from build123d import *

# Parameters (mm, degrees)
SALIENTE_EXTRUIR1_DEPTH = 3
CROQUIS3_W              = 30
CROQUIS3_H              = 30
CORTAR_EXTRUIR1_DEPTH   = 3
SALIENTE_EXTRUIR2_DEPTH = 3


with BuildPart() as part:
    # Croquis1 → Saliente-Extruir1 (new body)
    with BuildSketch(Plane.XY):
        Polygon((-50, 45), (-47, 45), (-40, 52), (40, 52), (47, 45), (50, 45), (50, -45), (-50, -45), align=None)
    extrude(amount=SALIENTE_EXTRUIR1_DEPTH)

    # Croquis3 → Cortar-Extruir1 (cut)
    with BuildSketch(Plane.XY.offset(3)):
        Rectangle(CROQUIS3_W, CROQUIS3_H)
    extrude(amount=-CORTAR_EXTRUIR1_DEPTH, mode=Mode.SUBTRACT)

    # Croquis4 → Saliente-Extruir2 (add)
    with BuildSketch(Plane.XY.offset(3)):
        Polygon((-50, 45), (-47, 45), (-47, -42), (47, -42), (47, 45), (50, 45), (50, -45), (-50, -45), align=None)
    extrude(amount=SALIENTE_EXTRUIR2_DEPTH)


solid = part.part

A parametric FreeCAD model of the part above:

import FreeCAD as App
import Part
import Sketcher
from FreeCAD import Vector
Q = App.Units.Quantity


def add_polygon(sketch, points):
    """Adds a closed chain of lines whose ends are joined by coincident constraints."""
    first, n = sketch.GeometryCount, len(points)
    for a, b in zip(points, points[1:] + points[:1]):
        sketch.addGeometry(Part.LineSegment(App.Vector(*a, 0), App.Vector(*b, 0)), False)
    for i in range(n):
        sketch.addConstraint(Sketcher.Constraint("Coincident", first + i, 2, first + (i + 1) % n, 1))

doc = App.newDocument("Part")
params = doc.addObject("Spreadsheet::Sheet", "Params")
for row, (alias, value) in enumerate([
    ("sketch1_width", "3 mm"),
    ("sketch1_width2", "100 mm"),
    ("sketch1_width3", "80 mm"),
    ("sketch1_height", "90 mm"),
    ("pad1_length", "3 mm"),
    ("sketch2_width", "30 mm"),
    ("pocket1_length", "3 mm"),
    ("sketch3_width", "3 mm"),
    ("sketch3_width2", "100 mm"),
    ("sketch3_height", "90 mm"),
    ("sketch3_height2", "87 mm"),
    ("pad2_length", "3 mm"),
], start=1):
    params.set(f"A{row}", alias)
    params.set(f"B{row}", "=" + value)
    params.setAlias(f"B{row}", alias)

body = doc.addObject("PartDesign::Body", "Body")

sketch1 = body.newObject("Sketcher::SketchObject", "Sketch")
sketch1.AttachmentSupport = (doc.getObject("XY_Plane"), [""])
sketch1.MapMode = "FlatFace"
add_polygon(sketch1, [(-47, 45), (-50, 45), (-50, -45), (50, -45), (50, 45), (47, 45), (40, 52), (-40, 52)])
sketch1.addConstraint([
    Sketcher.Constraint("Horizontal", 0),
    Sketcher.Constraint("Vertical", 1),
    Sketcher.Constraint("Horizontal", 2),
    Sketcher.Constraint("Vertical", 3),
    Sketcher.Constraint("Horizontal", 4),
    Sketcher.Constraint("Horizontal", 6),
    Sketcher.Constraint("Symmetric", 0, 2, 2, 2, -1, 1),
    Sketcher.Constraint("Symmetric", 4, 2, 7, 2, -2),
    Sketcher.Constraint("Perpendicular", 5, 7),
    Sketcher.Constraint("Equal", 5, 7),
    Sketcher.Constraint("DistanceX", 0, 2, 0, 1, Q("3 mm")),
    Sketcher.Constraint("DistanceX", 2, 1, 2, 2, Q("100 mm")),
    Sketcher.Constraint("DistanceX", 6, 2, 6, 1, Q("80 mm")),
    Sketcher.Constraint("DistanceY", 1, 2, 1, 1, Q("90 mm")),
])
sketch1.setExpression("Constraints[18]", "Params.sketch1_width")
sketch1.setExpression("Constraints[19]", "Params.sketch1_width2")
sketch1.setExpression("Constraints[20]", "Params.sketch1_width3")
sketch1.setExpression("Constraints[21]", "Params.sketch1_height")
pad1 = body.newObject("PartDesign::Pad", "Pad")
pad1.Profile = sketch1
pad1.setExpression("Length", "Params.pad1_length")

sketch2 = body.newObject("Sketcher::SketchObject", "Sketch001")
sketch2.AttachmentSupport = (doc.getObject("XY_Plane"), [""])
sketch2.MapMode = "FlatFace"
sketch2.AttachmentOffset = App.Placement(Vector(0, 0, 3), App.Rotation())
add_polygon(sketch2, [(-15, 15), (-15, -15), (15, -15), (15, 15)])
sketch2.addConstraint([
    Sketcher.Constraint("Vertical", 0),
    Sketcher.Constraint("Horizontal", 1),
    Sketcher.Constraint("Vertical", 2),
    Sketcher.Constraint("Horizontal", 3),
    Sketcher.Constraint("Symmetric", 0, 2, 2, 2, -1, 1),
    Sketcher.Constraint("Equal", 3, 0),
    Sketcher.Constraint("DistanceX", 1, 1, 1, 2, Q("30 mm")),
])
sketch2.setExpression("Constraints[10]", "Params.sketch2_width")
pocket1 = body.newObject("PartDesign::Pocket", "Pocket")
pocket1.Profile = sketch2
pocket1.setExpression("Length", "Params.pocket1_length")

sketch3 = body.newObject("Sketcher::SketchObject", "Sketch002")
sketch3.AttachmentSupport = (doc.getObject("XY_Plane"), [""])
sketch3.MapMode = "FlatFace"
sketch3.AttachmentOffset = App.Placement(Vector(0, 0, 3), App.Rotation())
add_polygon(sketch3, [(-47, 45), (-50, 45), (-50, -45), (50, -45), (50, 45), (47, 45), (47, -42), (-47, -42)])
sketch3.addConstraint([
    Sketcher.Constraint("Horizontal", 0),
    Sketcher.Constraint("Vertical", 1),
    Sketcher.Constraint("Horizontal", 2),
    Sketcher.Constraint("Vertical", 3),
    Sketcher.Constraint("Horizontal", 4),
    Sketcher.Constraint("Vertical", 5),
    Sketcher.Constraint("Horizontal", 6),
    Sketcher.Constraint("Vertical", 7),
    Sketcher.Constraint("Symmetric", 0, 2, 2, 2, -1, 1),
    Sketcher.Constraint("Symmetric", 4, 2, 7, 2, -2),
    Sketcher.Constraint("DistanceX", 0, 2, 0, 1, Q("3 mm")),
    Sketcher.Constraint("DistanceX", 2, 1, 2, 2, Q("100 mm")),
    Sketcher.Constraint("DistanceY", 1, 2, 1, 1, Q("90 mm")),
    Sketcher.Constraint("DistanceY", 5, 2, 5, 1, Q("87 mm")),
])
sketch3.setExpression("Constraints[18]", "Params.sketch3_width")
sketch3.setExpression("Constraints[19]", "Params.sketch3_width2")
sketch3.setExpression("Constraints[20]", "Params.sketch3_height")
sketch3.setExpression("Constraints[21]", "Params.sketch3_height2")
pad2 = body.newObject("PartDesign::Pad", "Pad001")
pad2.Profile = sketch3
pad2.setExpression("Length", "Params.pad2_length")

doc.recompute()
